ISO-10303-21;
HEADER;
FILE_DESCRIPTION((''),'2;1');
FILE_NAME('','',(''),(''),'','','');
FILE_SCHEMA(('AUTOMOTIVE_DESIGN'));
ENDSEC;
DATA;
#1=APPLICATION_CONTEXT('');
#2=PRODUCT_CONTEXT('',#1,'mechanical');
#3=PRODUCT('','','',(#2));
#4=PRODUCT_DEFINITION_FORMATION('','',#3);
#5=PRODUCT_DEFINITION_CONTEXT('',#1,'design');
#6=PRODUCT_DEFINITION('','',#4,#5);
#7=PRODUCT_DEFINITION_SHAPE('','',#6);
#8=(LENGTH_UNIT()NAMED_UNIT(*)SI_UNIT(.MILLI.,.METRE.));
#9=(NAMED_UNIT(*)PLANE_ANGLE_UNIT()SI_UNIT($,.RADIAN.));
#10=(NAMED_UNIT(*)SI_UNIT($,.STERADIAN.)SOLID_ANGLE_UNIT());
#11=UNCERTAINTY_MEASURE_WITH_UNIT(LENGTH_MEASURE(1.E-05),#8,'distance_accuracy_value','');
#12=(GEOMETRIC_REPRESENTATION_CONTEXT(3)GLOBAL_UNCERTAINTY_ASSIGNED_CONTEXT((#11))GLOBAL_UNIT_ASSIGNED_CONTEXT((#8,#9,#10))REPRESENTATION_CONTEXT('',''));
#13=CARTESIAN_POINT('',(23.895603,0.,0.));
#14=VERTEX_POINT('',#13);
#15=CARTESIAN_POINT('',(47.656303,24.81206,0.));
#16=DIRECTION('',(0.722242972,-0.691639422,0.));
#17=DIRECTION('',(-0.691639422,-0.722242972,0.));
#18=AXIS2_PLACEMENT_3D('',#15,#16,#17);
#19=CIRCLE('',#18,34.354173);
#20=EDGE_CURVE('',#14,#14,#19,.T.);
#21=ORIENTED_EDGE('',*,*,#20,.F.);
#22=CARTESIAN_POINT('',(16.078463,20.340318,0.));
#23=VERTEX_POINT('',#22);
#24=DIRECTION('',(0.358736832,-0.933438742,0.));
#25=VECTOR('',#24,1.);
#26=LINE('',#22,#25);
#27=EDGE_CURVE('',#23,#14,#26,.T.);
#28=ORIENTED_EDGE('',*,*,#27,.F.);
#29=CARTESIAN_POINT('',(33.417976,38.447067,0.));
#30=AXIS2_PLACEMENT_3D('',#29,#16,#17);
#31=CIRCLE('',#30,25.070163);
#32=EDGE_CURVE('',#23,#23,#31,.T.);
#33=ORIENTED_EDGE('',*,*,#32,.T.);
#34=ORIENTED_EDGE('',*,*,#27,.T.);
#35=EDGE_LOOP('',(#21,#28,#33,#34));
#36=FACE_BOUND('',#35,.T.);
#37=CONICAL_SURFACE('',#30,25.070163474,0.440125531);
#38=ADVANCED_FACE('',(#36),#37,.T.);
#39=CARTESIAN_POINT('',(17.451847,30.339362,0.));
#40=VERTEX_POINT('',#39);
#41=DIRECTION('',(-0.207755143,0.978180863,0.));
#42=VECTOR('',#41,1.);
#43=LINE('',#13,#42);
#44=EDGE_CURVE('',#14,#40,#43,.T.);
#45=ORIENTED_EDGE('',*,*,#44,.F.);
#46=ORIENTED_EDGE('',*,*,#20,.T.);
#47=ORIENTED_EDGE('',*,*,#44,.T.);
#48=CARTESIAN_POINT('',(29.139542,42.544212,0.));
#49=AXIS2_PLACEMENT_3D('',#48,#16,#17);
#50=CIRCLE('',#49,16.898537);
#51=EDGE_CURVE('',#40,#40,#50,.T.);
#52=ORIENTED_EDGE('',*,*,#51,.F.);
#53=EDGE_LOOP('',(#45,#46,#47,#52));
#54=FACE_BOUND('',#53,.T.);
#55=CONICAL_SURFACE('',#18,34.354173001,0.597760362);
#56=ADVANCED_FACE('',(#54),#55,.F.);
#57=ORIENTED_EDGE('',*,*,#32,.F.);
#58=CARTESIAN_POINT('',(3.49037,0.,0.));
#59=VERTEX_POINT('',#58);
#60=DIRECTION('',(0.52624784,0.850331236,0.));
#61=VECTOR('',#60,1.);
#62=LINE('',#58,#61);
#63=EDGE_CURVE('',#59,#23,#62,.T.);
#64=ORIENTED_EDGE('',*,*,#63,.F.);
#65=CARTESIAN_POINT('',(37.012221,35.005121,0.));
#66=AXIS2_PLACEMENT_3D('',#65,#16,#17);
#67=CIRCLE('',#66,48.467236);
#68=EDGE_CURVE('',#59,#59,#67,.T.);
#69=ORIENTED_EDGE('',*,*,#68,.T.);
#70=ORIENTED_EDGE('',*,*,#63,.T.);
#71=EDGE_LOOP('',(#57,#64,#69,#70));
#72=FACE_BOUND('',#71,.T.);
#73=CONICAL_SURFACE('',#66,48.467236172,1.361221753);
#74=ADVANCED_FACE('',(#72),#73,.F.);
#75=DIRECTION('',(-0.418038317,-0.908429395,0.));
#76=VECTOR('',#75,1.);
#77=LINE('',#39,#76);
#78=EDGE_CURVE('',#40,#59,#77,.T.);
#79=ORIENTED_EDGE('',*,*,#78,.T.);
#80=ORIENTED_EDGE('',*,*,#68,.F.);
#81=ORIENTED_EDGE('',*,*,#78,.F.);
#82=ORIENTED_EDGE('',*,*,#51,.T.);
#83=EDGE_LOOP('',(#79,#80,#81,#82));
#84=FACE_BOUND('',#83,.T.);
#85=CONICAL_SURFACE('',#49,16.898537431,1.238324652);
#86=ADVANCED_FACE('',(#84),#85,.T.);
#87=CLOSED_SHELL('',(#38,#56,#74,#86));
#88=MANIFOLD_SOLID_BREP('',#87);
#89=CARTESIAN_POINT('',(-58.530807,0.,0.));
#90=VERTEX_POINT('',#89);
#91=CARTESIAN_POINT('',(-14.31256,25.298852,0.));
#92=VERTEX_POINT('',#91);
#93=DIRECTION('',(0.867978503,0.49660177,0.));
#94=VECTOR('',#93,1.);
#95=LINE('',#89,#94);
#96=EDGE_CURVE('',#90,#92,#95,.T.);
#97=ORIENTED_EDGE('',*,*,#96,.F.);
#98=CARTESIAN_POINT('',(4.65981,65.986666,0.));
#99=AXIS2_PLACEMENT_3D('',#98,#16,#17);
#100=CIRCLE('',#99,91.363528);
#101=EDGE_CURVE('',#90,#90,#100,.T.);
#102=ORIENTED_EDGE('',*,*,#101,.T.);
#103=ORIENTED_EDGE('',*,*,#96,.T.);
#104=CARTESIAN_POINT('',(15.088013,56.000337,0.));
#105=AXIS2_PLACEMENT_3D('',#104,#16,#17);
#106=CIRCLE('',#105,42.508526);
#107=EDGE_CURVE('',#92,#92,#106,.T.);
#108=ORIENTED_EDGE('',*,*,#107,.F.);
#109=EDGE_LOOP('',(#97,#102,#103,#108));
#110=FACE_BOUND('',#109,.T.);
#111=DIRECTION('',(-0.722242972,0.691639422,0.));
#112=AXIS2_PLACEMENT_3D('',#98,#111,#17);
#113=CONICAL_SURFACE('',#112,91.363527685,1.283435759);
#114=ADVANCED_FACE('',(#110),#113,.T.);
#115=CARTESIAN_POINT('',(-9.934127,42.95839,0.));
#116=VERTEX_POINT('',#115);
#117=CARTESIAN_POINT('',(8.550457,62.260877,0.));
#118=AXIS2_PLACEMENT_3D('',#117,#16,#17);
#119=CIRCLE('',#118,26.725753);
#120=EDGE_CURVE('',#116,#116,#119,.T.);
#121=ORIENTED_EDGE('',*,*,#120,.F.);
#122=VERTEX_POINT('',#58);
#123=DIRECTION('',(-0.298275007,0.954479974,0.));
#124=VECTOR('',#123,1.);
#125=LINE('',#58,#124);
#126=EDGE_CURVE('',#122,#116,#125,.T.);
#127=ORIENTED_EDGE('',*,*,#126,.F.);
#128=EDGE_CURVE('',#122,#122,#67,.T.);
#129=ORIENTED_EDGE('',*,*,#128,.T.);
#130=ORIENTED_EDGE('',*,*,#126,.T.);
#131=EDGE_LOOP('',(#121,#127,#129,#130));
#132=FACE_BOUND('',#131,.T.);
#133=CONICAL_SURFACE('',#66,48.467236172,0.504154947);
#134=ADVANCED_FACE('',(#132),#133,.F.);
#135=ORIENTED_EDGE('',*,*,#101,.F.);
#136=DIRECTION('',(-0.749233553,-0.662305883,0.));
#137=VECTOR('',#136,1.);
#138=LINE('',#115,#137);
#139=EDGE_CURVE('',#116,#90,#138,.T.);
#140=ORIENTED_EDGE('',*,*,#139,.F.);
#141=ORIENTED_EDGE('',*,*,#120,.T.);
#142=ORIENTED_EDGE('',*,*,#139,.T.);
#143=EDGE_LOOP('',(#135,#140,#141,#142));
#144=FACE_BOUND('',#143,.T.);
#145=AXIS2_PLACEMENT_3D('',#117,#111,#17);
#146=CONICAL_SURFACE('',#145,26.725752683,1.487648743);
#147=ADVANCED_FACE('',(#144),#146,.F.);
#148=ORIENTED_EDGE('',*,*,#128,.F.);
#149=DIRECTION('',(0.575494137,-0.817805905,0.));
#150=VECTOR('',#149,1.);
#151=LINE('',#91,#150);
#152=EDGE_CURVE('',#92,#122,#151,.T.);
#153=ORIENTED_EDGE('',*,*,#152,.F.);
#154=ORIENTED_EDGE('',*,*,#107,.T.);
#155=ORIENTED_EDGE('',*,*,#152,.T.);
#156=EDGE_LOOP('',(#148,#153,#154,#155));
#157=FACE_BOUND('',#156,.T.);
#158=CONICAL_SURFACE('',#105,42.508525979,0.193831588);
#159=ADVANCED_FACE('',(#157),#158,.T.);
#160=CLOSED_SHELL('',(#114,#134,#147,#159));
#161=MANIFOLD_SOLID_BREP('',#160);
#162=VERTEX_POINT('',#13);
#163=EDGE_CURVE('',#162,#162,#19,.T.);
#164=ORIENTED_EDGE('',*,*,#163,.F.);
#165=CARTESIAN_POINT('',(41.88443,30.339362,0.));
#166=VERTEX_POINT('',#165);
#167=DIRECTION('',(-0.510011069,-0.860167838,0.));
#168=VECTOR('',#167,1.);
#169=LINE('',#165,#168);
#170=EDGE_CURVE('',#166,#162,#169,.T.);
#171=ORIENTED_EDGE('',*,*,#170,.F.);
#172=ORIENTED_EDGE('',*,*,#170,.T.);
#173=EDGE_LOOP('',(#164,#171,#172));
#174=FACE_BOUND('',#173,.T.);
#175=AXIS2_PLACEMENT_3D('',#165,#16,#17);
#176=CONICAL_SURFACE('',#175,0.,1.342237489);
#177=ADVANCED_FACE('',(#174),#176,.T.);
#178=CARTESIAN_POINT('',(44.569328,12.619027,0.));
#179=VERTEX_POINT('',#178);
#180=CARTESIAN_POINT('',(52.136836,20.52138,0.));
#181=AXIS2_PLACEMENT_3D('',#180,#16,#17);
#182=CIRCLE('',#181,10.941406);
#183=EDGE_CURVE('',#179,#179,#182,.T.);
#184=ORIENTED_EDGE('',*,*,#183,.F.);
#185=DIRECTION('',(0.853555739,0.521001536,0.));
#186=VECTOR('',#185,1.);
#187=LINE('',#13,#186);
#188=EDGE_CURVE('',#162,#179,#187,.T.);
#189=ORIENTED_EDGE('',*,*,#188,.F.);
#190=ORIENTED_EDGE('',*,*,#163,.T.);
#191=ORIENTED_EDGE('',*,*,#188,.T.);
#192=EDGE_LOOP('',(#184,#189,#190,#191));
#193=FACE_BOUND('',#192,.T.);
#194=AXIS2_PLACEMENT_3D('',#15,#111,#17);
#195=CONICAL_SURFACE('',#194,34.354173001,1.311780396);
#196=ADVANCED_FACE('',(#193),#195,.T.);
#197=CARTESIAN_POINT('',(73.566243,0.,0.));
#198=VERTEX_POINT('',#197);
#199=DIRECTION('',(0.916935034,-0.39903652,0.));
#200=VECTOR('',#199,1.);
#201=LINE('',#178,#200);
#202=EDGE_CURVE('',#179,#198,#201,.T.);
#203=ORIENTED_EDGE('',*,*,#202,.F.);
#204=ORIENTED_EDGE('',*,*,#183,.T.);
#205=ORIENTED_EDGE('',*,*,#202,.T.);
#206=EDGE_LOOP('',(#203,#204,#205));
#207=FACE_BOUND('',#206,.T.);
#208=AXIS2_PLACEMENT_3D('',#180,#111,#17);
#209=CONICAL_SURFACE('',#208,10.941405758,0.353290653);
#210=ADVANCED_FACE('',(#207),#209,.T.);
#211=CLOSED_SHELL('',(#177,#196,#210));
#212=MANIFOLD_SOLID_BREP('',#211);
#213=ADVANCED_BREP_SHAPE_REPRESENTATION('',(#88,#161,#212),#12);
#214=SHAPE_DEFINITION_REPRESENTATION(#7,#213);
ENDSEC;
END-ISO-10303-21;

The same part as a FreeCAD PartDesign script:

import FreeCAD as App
import Part
import Sketcher
from FreeCAD import Vector

doc = App.newDocument("Part")
body = doc.addObject("PartDesign::Body", "Body")

sketch1 = doc.addObject("Sketcher::SketchObject", "Sketch")
body.addObject(sketch1)
sketch1.AttachmentSupport = (doc.XY_Plane, [""])
sketch1.MapMode = "FlatFace"
sketch1.addGeometry(Part.LineSegment(Vector(41.88443, 30.339362, 0), Vector(23.895603, 0, 0)), False)
sketch1.addGeometry(Part.LineSegment(Vector(23.895603, 0, 0), Vector(44.569328, 12.619027, 0)), False)
sketch1.addGeometry(Part.LineSegment(Vector(44.569328, 12.619027, 0), Vector(73.566243, 0, 0)), False)
sketch1.addGeometry(Part.LineSegment(Vector(73.566243, 0, 0), Vector(41.88443, 30.339362, 0)), False)
sketch1.addGeometry(Part.LineSegment(Vector(41.88443, 30.339362, 0), Vector(73.566243, 0, 0)), True)
sketch1.addConstraint(Sketcher.Constraint("Coincident", 0, 2, 1, 1))
sketch1.addConstraint(Sketcher.Constraint("Coincident", 1, 2, 2, 1))
sketch1.addConstraint(Sketcher.Constraint("Coincident", 2, 2, 3, 1))
sketch1.addConstraint(Sketcher.Constraint("Coincident", 3, 2, 0, 1))
sketch1.addConstraint(Sketcher.Constraint("Coincident", 4, 1, 3, 2))
sketch1.addConstraint(Sketcher.Constraint("Coincident", 4, 2, 2, 2))
sketch1.addConstraint(Sketcher.Constraint("PointOnObject", 0, 2, -1))
sketch1.addConstraint(Sketcher.Constraint("PointOnObject", 2, 2, -1))
sketch1.addConstraint(Sketcher.Constraint("DistanceX", 3, 2, 1, 2, 2.684899))
sketch1.addConstraint(Sketcher.Constraint("Distance", 1, 24.22071))
sketch1.addConstraint(Sketcher.Constraint("Distance", 2, 31.623739))
sketch1.addConstraint(Sketcher.Constraint("DistanceX", -1, 1, 1, 2, 44.569328))
sketch1.addConstraint(Sketcher.Constraint("DistanceX", 0, 2, 2, 2, 49.67064))
sketch1.addConstraint(Sketcher.Constraint("Distance", 0, 35.271444))
revolution = doc.addObject("PartDesign::Revolution", "Revolution")
body.addObject(revolution)
revolution.Profile = sketch1
revolution.ReferenceAxis = (sketch1, ["Axis0"])
revolution.Angle = 360
body2 = doc.addObject("PartDesign::Body", "Body001")

sketch2 = doc.addObject("Sketcher::SketchObject", "Sketch001")
body2.addObject(sketch2)
sketch2.AttachmentSupport = (doc.getObject("XY_Plane001"), [""])
sketch2.MapMode = "FlatFace"
sketch2.addGeometry(Part.LineSegment(Vector(17.451847, 30.339362, 0), Vector(3.49037, 0, 0)), False)
sketch2.addGeometry(Part.LineSegment(Vector(3.49037, 0, 0), Vector(16.078463, 20.340318, 0)), False)
sketch2.addGeometry(Part.LineSegment(Vector(16.078463, 20.340318, 0), Vector(23.895603, 0, 0)), False)
sketch2.addGeometry(Part.LineSegment(Vector(23.895603, 0, 0), Vector(17.451847, 30.339362, 0)), False)
sketch2.addGeometry(Part.LineSegment(Vector(29.139542, 42.544212, 0), Vector(47.656303, 24.81206, 0)), True)
sketch2.addConstraint(Sketcher.Constraint("Coincident", 0, 2, 1, 1))
sketch2.addConstraint(Sketcher.Constraint("Coincident", 1, 2, 2, 1))
sketch2.addConstraint(Sketcher.Constraint("Coincident", 2, 2, 3, 1))
sketch2.addConstraint(Sketcher.Constraint("Coincident", 3, 2, 0, 1))
sketch2.addConstraint(Sketcher.Constraint("PointOnObject", 0, 2, -1))
sketch2.addConstraint(Sketcher.Constraint("PointOnObject", 2, 2, -1))
sketch2.addConstraint(Sketcher.Constraint("Distance", 0, 33.397601))
sketch2.addConstraint(Sketcher.Constraint("DistanceX", 2, 2, 4, 2, 23.7607))
sketch2.addConstraint(Sketcher.Constraint("DistanceX", -1, 1, 0, 2, 3.49037))
sketch2.addConstraint(Sketcher.Constraint("DistanceX", -1, 1, 4, 1, 29.139542))
sketch2.addConstraint(Sketcher.Constraint("DistanceY", -1, 1, 4, 2, 24.81206))
sketch2.addConstraint(Sketcher.Constraint("DistanceX", 1, 2, 2, 2, 7.81714))
sketch2.addConstraint(Sketcher.Constraint("DistanceY", 3, 2, 4, 1, 12.20485))
sketch2.addConstraint(Sketcher.Constraint("DistanceX", 1, 2, 4, 1, 13.061079))
sketch2.addConstraint(Sketcher.Constraint("DistanceY", 4, 2, 4, 1, 17.732152))
sketch2.addConstraint(Sketcher.Constraint("Distance", 1, 23.920464))
revolution2 = doc.addObject("PartDesign::Revolution", "Revolution001")
body2.addObject(revolution2)
revolution2.Profile = sketch2
revolution2.ReferenceAxis = (sketch2, ["Axis0"])
revolution2.Angle = 360
body3 = doc.addObject("PartDesign::Body", "Body002")

sketch3 = doc.addObject("Sketcher::SketchObject", "Sketch002")
body3.addObject(sketch3)
sketch3.AttachmentSupport = (doc.getObject("XY_Plane002"), [""])
sketch3.MapMode = "FlatFace"
sketch3.addGeometry(Part.LineSegment(Vector(-9.934127, 42.95839, 0), Vector(-58.530807, 0, 0)), False)
sketch3.addGeometry(Part.LineSegment(Vector(-58.530807, 0, 0), Vector(-14.31256, 25.298852, 0)), False)
sketch3.addGeometry(Part.LineSegment(Vector(-14.31256, 25.298852, 0), Vector(3.49037, 0, 0)), False)
sketch3.addGeometry(Part.LineSegment(Vector(3.49037, 0, 0), Vector(-9.934127, 42.95839, 0)), False)
sketch3.addGeometry(Part.LineSegment(Vector(4.65981, 65.986666, 0), Vector(37.012221, 35.005121, 0)), True)
sketch3.addConstraint(Sketcher.Constraint("Coincident", 0, 2, 1, 1))
sketch3.addConstraint(Sketcher.Constraint("Coincident", 1, 2, 2, 1))
sketch3.addConstraint(Sketcher.Constraint("Coincident", 2, 2, 3, 1))
sketch3.addConstraint(Sketcher.Constraint("Coincident", 3, 2, 0, 1))
sketch3.addConstraint(Sketcher.Constraint("PointOnObject", 0, 2, -1))
sketch3.addConstraint(Sketcher.Constraint("PointOnObject", 2, 2, -1))
sketch3.addConstraint(Sketcher.Constraint("Distance", 4, 44.79436))
sketch3.addConstraint(Sketcher.Constraint("DistanceX", 1, 2, -1, 1, 14.31256))
sketch3.addConstraint(Sketcher.Constraint("DistanceX", -1, 1, 2, 2, 3.49037))
sketch3.addConstraint(Sketcher.Constraint("DistanceY", -1, 1, 3, 2, 42.95839))
sketch3.addConstraint(Sketcher.Constraint("DistanceX", -1, 1, 4, 1, 4.65981))
sketch3.addConstraint(Sketcher.Constraint("DistanceX", -1, 1, 4, 2, 37.012221))
sketch3.addConstraint(Sketcher.Constraint("DistanceY", -1, 1, 4, 2, 35.005121))
sketch3.addConstraint(Sketcher.Constraint("DistanceX", 0, 2, 3, 2, 48.59668))
sketch3.addConstraint(Sketcher.Constraint("DistanceX", 3, 2, 4, 2, 46.946349))
sketch3.addConstraint(Sketcher.Constraint("DistanceY", 1, 2, 4, 2, 9.706268))
revolution3 = doc.addObject("PartDesign::Revolution", "Revolution002")
body3.addObject(revolution3)
revolution3.Profile = sketch3
revolution3.ReferenceAxis = (sketch3, ["Axis0"])
revolution3.Angle = 360

doc.recompute()
